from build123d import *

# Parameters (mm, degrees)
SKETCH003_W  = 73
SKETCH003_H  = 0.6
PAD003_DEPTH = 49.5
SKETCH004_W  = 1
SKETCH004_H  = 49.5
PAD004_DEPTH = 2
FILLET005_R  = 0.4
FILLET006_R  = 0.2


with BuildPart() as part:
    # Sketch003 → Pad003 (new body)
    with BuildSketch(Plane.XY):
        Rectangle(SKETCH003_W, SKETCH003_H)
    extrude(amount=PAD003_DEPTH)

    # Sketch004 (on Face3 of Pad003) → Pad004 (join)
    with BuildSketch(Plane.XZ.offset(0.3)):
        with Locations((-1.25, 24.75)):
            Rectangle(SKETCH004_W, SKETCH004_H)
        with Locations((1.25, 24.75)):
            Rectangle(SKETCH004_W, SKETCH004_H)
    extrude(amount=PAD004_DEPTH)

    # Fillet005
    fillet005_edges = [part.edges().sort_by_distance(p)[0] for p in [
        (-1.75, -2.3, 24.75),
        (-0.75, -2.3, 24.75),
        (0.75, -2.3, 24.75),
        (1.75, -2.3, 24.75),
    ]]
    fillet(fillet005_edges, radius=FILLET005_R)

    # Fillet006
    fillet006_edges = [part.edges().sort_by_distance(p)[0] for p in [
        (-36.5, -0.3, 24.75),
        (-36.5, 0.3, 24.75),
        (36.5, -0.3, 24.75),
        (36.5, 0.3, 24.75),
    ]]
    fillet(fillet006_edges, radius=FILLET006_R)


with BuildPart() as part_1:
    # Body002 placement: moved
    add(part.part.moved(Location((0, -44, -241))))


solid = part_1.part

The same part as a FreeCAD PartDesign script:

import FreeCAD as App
import Part
import Sketcher
from FreeCAD import Vector
Q = App.Units.Quantity


def edges_at(feature, points):
    """Names of the edges that pass closest to the given points."""
    edges = feature.Shape.Edges
    near = lambda p: min(range(len(edges)), key=lambda i: edges[i].distToShape(Part.Vertex(*p))[0])
    return sorted({f"Edge{near(p) + 1}" for p in points})

doc = App.newDocument("Part")
params = doc.addObject("Spreadsheet::Sheet", "Params")
for row, (alias, value) in enumerate([
    ("sketch1_width", "73 mm"),
    ("sketch1_height", "0.6 mm"),
    ("pad1_length", "49.5 mm"),
    ("sketch2_width", "1 mm"),
    ("sketch2_height", "49.5 mm"),
    ("pad2_length", "2 mm"),
    ("fillet_radius", "0.4 mm"),
    ("fillet2_radius", "0.2 mm"),
], start=1):
    params.set(f"A{row}", alias)
    params.set(f"B{row}", "=" + value)
    params.setAlias(f"B{row}", alias)

body = doc.addObject("PartDesign::Body", "Body")

# Sketch on XY plane
sketch1 = doc.addObject("Sketcher::SketchObject", "Sketch")
body.addObject(sketch1)
sketch1.AttachmentSupport = (doc.XY_Plane, [""])
sketch1.MapMode = "FlatFace"
sketch1.addGeometry([
    Part.LineSegment(Vector(-36.5, 0.3, 0), Vector(-36.5, -0.3, 0)),
    Part.LineSegment(Vector(-36.5, -0.3, 0), Vector(36.5, -0.3, 0)),
    Part.LineSegment(Vector(36.5, -0.3, 0), Vector(36.5, 0.3, 0)),
    Part.LineSegment(Vector(36.5, 0.3, 0), Vector(-36.5, 0.3, 0)),
], False)
sketch1.addConstraint([
    Sketcher.Constraint("Coincident", 0, 2, 1, 1),
    Sketcher.Constraint("Coincident", 1, 2, 2, 1),
    Sketcher.Constraint("Coincident", 2, 2, 3, 1),
    Sketcher.Constraint("Coincident", 3, 2, 0, 1),
    Sketcher.Constraint("Vertical", 0),
    Sketcher.Constraint("Horizontal", 1),
    Sketcher.Constraint("Vertical", 2),
    Sketcher.Constraint("Horizontal", 3),
    Sketcher.Constraint("Symmetric", 0, 2, 2, 2, -1, 1),
    Sketcher.Constraint("DistanceX", 1, 1, 1, 2, Q("73 mm")),
    Sketcher.Constraint("DistanceY", 0, 2, 0, 1, Q("0.6 mm")),
])
sketch1.setExpression("Constraints[9]", "Params.sketch1_width")
sketch1.setExpression("Constraints[10]", "Params.sketch1_height")
pad1 = doc.addObject("PartDesign::Pad", "Pad")
body.addObject(pad1)
pad1.Profile = sketch1
pad1.setExpression("Length", "Params.pad1_length")

# Sketch on XZ plane
sketch2 = doc.addObject("Sketcher::SketchObject", "Sketch001")
body.addObject(sketch2)
sketch2.AttachmentSupport = (doc.XZ_Plane, [""])
sketch2.MapMode = "FlatFace"
sketch2.AttachmentOffset = App.Placement(Vector(0, 0, 0.3), App.Rotation())
sketch2.addGeometry([
    Part.LineSegment(Vector(-1.75, 49.5, 0), Vector(-1.75, 0, 0)),  # 0
    Part.LineSegment(Vector(-1.75, 0, 0), Vector(-0.75, 0, 0)),  # 1
    Part.LineSegment(Vector(-0.75, 0, 0), Vector(-0.75, 49.5, 0)),  # 2
    Part.LineSegment(Vector(-0.75, 49.5, 0), Vector(-1.75, 49.5, 0)),  # 3
    Part.LineSegment(Vector(0.75, 49.5, 0), Vector(0.75, 0, 0)),  # 4
    Part.LineSegment(Vector(0.75, 0, 0), Vector(1.75, 0, 0)),  # 5
    Part.LineSegment(Vector(1.75, 0, 0), Vector(1.75, 49.5, 0)),  # 6
    Part.LineSegment(Vector(1.75, 49.5, 0), Vector(0.75, 49.5, 0)),  # 7
], False)
sketch2.addConstraint([
    Sketcher.Constraint("Coincident", 0, 2, 1, 1),
    Sketcher.Constraint("Coincident", 1, 2, 2, 1),
    Sketcher.Constraint("Coincident", 2, 2, 3, 1),
    Sketcher.Constraint("Coincident", 3, 2, 0, 1),
    Sketcher.Constraint("Coincident", 4, 2, 5, 1),
    Sketcher.Constraint("Coincident", 5, 2, 6, 1),
    Sketcher.Constraint("Coincident", 6, 2, 7, 1),
    Sketcher.Constraint("Coincident", 7, 2, 4, 1),
    Sketcher.Constraint("Vertical", 0),
    Sketcher.Constraint("Horizontal", 1),
    Sketcher.Constraint("Vertical", 2),
    Sketcher.Constraint("Horizontal", 3),
    Sketcher.Constraint("Vertical", 4),
    Sketcher.Constraint("Horizontal", 5),
    Sketcher.Constraint("Vertical", 6),
    Sketcher.Constraint("Horizontal", 7),
    Sketcher.Constraint("Symmetric", 1, 2, 4, 2, -1, 1),
    Sketcher.Constraint("Symmetric", 0, 2, 5, 2, -2),
    Sketcher.Constraint("Horizontal", 3, 2, 6, 2),
    Sketcher.Constraint("DistanceX", 1, 1, 1, 2, Q("1 mm")),
    Sketcher.Constraint("DistanceY", 0, 2, 0, 1, Q("49.5 mm")),
    Sketcher.Constraint("DistanceX", 1, 2, 4, 2, Q("1.5 mm")),
])
sketch2.setExpression("Constraints[19]", "Params.sketch2_width")
sketch2.setExpression("Constraints[20]", "Params.sketch2_height")
pad2 = doc.addObject("PartDesign::Pad", "Pad001")
body.addObject(pad2)
pad2.Profile = sketch2
pad2.setExpression("Length", "Params.pad2_length")
doc.recompute()

fillet = doc.addObject("PartDesign::Fillet", "Fillet")
body.addObject(fillet)
fillet.Base = (pad2, edges_at(pad2, [
    (-1.75, -2.3, 24.75),
    (-0.75, -2.3, 24.75),
    (0.75, -2.3, 24.75),
    (1.75, -2.3, 24.75),
]))
fillet.setExpression("Radius", "Params.fillet_radius")
doc.recompute()

fillet2 = doc.addObject("PartDesign::Fillet", "Fillet001")
body.addObject(fillet2)
fillet2.Base = (fillet, edges_at(fillet, [
    (-36.5, -0.3, 24.75),
    (-36.5, 0.3, 24.75),
    (36.5, -0.3, 24.75),
    (36.5, 0.3, 24.75),
]))
fillet2.setExpression("Radius", "Params.fillet2_radius")
body2 = doc.addObject("PartDesign::Body", "Body001")
doc.recompute()

body.Placement = App.Placement(Vector(0, -44, -241), App.Rotation(Vector(0, 0, 1), 0))
boolean = doc.addObject("PartDesign::Boolean", "Boolean")
body2.addObject(boolean)
boolean.Type = "Fuse"
boolean.addObjects([body])

doc.recompute()
